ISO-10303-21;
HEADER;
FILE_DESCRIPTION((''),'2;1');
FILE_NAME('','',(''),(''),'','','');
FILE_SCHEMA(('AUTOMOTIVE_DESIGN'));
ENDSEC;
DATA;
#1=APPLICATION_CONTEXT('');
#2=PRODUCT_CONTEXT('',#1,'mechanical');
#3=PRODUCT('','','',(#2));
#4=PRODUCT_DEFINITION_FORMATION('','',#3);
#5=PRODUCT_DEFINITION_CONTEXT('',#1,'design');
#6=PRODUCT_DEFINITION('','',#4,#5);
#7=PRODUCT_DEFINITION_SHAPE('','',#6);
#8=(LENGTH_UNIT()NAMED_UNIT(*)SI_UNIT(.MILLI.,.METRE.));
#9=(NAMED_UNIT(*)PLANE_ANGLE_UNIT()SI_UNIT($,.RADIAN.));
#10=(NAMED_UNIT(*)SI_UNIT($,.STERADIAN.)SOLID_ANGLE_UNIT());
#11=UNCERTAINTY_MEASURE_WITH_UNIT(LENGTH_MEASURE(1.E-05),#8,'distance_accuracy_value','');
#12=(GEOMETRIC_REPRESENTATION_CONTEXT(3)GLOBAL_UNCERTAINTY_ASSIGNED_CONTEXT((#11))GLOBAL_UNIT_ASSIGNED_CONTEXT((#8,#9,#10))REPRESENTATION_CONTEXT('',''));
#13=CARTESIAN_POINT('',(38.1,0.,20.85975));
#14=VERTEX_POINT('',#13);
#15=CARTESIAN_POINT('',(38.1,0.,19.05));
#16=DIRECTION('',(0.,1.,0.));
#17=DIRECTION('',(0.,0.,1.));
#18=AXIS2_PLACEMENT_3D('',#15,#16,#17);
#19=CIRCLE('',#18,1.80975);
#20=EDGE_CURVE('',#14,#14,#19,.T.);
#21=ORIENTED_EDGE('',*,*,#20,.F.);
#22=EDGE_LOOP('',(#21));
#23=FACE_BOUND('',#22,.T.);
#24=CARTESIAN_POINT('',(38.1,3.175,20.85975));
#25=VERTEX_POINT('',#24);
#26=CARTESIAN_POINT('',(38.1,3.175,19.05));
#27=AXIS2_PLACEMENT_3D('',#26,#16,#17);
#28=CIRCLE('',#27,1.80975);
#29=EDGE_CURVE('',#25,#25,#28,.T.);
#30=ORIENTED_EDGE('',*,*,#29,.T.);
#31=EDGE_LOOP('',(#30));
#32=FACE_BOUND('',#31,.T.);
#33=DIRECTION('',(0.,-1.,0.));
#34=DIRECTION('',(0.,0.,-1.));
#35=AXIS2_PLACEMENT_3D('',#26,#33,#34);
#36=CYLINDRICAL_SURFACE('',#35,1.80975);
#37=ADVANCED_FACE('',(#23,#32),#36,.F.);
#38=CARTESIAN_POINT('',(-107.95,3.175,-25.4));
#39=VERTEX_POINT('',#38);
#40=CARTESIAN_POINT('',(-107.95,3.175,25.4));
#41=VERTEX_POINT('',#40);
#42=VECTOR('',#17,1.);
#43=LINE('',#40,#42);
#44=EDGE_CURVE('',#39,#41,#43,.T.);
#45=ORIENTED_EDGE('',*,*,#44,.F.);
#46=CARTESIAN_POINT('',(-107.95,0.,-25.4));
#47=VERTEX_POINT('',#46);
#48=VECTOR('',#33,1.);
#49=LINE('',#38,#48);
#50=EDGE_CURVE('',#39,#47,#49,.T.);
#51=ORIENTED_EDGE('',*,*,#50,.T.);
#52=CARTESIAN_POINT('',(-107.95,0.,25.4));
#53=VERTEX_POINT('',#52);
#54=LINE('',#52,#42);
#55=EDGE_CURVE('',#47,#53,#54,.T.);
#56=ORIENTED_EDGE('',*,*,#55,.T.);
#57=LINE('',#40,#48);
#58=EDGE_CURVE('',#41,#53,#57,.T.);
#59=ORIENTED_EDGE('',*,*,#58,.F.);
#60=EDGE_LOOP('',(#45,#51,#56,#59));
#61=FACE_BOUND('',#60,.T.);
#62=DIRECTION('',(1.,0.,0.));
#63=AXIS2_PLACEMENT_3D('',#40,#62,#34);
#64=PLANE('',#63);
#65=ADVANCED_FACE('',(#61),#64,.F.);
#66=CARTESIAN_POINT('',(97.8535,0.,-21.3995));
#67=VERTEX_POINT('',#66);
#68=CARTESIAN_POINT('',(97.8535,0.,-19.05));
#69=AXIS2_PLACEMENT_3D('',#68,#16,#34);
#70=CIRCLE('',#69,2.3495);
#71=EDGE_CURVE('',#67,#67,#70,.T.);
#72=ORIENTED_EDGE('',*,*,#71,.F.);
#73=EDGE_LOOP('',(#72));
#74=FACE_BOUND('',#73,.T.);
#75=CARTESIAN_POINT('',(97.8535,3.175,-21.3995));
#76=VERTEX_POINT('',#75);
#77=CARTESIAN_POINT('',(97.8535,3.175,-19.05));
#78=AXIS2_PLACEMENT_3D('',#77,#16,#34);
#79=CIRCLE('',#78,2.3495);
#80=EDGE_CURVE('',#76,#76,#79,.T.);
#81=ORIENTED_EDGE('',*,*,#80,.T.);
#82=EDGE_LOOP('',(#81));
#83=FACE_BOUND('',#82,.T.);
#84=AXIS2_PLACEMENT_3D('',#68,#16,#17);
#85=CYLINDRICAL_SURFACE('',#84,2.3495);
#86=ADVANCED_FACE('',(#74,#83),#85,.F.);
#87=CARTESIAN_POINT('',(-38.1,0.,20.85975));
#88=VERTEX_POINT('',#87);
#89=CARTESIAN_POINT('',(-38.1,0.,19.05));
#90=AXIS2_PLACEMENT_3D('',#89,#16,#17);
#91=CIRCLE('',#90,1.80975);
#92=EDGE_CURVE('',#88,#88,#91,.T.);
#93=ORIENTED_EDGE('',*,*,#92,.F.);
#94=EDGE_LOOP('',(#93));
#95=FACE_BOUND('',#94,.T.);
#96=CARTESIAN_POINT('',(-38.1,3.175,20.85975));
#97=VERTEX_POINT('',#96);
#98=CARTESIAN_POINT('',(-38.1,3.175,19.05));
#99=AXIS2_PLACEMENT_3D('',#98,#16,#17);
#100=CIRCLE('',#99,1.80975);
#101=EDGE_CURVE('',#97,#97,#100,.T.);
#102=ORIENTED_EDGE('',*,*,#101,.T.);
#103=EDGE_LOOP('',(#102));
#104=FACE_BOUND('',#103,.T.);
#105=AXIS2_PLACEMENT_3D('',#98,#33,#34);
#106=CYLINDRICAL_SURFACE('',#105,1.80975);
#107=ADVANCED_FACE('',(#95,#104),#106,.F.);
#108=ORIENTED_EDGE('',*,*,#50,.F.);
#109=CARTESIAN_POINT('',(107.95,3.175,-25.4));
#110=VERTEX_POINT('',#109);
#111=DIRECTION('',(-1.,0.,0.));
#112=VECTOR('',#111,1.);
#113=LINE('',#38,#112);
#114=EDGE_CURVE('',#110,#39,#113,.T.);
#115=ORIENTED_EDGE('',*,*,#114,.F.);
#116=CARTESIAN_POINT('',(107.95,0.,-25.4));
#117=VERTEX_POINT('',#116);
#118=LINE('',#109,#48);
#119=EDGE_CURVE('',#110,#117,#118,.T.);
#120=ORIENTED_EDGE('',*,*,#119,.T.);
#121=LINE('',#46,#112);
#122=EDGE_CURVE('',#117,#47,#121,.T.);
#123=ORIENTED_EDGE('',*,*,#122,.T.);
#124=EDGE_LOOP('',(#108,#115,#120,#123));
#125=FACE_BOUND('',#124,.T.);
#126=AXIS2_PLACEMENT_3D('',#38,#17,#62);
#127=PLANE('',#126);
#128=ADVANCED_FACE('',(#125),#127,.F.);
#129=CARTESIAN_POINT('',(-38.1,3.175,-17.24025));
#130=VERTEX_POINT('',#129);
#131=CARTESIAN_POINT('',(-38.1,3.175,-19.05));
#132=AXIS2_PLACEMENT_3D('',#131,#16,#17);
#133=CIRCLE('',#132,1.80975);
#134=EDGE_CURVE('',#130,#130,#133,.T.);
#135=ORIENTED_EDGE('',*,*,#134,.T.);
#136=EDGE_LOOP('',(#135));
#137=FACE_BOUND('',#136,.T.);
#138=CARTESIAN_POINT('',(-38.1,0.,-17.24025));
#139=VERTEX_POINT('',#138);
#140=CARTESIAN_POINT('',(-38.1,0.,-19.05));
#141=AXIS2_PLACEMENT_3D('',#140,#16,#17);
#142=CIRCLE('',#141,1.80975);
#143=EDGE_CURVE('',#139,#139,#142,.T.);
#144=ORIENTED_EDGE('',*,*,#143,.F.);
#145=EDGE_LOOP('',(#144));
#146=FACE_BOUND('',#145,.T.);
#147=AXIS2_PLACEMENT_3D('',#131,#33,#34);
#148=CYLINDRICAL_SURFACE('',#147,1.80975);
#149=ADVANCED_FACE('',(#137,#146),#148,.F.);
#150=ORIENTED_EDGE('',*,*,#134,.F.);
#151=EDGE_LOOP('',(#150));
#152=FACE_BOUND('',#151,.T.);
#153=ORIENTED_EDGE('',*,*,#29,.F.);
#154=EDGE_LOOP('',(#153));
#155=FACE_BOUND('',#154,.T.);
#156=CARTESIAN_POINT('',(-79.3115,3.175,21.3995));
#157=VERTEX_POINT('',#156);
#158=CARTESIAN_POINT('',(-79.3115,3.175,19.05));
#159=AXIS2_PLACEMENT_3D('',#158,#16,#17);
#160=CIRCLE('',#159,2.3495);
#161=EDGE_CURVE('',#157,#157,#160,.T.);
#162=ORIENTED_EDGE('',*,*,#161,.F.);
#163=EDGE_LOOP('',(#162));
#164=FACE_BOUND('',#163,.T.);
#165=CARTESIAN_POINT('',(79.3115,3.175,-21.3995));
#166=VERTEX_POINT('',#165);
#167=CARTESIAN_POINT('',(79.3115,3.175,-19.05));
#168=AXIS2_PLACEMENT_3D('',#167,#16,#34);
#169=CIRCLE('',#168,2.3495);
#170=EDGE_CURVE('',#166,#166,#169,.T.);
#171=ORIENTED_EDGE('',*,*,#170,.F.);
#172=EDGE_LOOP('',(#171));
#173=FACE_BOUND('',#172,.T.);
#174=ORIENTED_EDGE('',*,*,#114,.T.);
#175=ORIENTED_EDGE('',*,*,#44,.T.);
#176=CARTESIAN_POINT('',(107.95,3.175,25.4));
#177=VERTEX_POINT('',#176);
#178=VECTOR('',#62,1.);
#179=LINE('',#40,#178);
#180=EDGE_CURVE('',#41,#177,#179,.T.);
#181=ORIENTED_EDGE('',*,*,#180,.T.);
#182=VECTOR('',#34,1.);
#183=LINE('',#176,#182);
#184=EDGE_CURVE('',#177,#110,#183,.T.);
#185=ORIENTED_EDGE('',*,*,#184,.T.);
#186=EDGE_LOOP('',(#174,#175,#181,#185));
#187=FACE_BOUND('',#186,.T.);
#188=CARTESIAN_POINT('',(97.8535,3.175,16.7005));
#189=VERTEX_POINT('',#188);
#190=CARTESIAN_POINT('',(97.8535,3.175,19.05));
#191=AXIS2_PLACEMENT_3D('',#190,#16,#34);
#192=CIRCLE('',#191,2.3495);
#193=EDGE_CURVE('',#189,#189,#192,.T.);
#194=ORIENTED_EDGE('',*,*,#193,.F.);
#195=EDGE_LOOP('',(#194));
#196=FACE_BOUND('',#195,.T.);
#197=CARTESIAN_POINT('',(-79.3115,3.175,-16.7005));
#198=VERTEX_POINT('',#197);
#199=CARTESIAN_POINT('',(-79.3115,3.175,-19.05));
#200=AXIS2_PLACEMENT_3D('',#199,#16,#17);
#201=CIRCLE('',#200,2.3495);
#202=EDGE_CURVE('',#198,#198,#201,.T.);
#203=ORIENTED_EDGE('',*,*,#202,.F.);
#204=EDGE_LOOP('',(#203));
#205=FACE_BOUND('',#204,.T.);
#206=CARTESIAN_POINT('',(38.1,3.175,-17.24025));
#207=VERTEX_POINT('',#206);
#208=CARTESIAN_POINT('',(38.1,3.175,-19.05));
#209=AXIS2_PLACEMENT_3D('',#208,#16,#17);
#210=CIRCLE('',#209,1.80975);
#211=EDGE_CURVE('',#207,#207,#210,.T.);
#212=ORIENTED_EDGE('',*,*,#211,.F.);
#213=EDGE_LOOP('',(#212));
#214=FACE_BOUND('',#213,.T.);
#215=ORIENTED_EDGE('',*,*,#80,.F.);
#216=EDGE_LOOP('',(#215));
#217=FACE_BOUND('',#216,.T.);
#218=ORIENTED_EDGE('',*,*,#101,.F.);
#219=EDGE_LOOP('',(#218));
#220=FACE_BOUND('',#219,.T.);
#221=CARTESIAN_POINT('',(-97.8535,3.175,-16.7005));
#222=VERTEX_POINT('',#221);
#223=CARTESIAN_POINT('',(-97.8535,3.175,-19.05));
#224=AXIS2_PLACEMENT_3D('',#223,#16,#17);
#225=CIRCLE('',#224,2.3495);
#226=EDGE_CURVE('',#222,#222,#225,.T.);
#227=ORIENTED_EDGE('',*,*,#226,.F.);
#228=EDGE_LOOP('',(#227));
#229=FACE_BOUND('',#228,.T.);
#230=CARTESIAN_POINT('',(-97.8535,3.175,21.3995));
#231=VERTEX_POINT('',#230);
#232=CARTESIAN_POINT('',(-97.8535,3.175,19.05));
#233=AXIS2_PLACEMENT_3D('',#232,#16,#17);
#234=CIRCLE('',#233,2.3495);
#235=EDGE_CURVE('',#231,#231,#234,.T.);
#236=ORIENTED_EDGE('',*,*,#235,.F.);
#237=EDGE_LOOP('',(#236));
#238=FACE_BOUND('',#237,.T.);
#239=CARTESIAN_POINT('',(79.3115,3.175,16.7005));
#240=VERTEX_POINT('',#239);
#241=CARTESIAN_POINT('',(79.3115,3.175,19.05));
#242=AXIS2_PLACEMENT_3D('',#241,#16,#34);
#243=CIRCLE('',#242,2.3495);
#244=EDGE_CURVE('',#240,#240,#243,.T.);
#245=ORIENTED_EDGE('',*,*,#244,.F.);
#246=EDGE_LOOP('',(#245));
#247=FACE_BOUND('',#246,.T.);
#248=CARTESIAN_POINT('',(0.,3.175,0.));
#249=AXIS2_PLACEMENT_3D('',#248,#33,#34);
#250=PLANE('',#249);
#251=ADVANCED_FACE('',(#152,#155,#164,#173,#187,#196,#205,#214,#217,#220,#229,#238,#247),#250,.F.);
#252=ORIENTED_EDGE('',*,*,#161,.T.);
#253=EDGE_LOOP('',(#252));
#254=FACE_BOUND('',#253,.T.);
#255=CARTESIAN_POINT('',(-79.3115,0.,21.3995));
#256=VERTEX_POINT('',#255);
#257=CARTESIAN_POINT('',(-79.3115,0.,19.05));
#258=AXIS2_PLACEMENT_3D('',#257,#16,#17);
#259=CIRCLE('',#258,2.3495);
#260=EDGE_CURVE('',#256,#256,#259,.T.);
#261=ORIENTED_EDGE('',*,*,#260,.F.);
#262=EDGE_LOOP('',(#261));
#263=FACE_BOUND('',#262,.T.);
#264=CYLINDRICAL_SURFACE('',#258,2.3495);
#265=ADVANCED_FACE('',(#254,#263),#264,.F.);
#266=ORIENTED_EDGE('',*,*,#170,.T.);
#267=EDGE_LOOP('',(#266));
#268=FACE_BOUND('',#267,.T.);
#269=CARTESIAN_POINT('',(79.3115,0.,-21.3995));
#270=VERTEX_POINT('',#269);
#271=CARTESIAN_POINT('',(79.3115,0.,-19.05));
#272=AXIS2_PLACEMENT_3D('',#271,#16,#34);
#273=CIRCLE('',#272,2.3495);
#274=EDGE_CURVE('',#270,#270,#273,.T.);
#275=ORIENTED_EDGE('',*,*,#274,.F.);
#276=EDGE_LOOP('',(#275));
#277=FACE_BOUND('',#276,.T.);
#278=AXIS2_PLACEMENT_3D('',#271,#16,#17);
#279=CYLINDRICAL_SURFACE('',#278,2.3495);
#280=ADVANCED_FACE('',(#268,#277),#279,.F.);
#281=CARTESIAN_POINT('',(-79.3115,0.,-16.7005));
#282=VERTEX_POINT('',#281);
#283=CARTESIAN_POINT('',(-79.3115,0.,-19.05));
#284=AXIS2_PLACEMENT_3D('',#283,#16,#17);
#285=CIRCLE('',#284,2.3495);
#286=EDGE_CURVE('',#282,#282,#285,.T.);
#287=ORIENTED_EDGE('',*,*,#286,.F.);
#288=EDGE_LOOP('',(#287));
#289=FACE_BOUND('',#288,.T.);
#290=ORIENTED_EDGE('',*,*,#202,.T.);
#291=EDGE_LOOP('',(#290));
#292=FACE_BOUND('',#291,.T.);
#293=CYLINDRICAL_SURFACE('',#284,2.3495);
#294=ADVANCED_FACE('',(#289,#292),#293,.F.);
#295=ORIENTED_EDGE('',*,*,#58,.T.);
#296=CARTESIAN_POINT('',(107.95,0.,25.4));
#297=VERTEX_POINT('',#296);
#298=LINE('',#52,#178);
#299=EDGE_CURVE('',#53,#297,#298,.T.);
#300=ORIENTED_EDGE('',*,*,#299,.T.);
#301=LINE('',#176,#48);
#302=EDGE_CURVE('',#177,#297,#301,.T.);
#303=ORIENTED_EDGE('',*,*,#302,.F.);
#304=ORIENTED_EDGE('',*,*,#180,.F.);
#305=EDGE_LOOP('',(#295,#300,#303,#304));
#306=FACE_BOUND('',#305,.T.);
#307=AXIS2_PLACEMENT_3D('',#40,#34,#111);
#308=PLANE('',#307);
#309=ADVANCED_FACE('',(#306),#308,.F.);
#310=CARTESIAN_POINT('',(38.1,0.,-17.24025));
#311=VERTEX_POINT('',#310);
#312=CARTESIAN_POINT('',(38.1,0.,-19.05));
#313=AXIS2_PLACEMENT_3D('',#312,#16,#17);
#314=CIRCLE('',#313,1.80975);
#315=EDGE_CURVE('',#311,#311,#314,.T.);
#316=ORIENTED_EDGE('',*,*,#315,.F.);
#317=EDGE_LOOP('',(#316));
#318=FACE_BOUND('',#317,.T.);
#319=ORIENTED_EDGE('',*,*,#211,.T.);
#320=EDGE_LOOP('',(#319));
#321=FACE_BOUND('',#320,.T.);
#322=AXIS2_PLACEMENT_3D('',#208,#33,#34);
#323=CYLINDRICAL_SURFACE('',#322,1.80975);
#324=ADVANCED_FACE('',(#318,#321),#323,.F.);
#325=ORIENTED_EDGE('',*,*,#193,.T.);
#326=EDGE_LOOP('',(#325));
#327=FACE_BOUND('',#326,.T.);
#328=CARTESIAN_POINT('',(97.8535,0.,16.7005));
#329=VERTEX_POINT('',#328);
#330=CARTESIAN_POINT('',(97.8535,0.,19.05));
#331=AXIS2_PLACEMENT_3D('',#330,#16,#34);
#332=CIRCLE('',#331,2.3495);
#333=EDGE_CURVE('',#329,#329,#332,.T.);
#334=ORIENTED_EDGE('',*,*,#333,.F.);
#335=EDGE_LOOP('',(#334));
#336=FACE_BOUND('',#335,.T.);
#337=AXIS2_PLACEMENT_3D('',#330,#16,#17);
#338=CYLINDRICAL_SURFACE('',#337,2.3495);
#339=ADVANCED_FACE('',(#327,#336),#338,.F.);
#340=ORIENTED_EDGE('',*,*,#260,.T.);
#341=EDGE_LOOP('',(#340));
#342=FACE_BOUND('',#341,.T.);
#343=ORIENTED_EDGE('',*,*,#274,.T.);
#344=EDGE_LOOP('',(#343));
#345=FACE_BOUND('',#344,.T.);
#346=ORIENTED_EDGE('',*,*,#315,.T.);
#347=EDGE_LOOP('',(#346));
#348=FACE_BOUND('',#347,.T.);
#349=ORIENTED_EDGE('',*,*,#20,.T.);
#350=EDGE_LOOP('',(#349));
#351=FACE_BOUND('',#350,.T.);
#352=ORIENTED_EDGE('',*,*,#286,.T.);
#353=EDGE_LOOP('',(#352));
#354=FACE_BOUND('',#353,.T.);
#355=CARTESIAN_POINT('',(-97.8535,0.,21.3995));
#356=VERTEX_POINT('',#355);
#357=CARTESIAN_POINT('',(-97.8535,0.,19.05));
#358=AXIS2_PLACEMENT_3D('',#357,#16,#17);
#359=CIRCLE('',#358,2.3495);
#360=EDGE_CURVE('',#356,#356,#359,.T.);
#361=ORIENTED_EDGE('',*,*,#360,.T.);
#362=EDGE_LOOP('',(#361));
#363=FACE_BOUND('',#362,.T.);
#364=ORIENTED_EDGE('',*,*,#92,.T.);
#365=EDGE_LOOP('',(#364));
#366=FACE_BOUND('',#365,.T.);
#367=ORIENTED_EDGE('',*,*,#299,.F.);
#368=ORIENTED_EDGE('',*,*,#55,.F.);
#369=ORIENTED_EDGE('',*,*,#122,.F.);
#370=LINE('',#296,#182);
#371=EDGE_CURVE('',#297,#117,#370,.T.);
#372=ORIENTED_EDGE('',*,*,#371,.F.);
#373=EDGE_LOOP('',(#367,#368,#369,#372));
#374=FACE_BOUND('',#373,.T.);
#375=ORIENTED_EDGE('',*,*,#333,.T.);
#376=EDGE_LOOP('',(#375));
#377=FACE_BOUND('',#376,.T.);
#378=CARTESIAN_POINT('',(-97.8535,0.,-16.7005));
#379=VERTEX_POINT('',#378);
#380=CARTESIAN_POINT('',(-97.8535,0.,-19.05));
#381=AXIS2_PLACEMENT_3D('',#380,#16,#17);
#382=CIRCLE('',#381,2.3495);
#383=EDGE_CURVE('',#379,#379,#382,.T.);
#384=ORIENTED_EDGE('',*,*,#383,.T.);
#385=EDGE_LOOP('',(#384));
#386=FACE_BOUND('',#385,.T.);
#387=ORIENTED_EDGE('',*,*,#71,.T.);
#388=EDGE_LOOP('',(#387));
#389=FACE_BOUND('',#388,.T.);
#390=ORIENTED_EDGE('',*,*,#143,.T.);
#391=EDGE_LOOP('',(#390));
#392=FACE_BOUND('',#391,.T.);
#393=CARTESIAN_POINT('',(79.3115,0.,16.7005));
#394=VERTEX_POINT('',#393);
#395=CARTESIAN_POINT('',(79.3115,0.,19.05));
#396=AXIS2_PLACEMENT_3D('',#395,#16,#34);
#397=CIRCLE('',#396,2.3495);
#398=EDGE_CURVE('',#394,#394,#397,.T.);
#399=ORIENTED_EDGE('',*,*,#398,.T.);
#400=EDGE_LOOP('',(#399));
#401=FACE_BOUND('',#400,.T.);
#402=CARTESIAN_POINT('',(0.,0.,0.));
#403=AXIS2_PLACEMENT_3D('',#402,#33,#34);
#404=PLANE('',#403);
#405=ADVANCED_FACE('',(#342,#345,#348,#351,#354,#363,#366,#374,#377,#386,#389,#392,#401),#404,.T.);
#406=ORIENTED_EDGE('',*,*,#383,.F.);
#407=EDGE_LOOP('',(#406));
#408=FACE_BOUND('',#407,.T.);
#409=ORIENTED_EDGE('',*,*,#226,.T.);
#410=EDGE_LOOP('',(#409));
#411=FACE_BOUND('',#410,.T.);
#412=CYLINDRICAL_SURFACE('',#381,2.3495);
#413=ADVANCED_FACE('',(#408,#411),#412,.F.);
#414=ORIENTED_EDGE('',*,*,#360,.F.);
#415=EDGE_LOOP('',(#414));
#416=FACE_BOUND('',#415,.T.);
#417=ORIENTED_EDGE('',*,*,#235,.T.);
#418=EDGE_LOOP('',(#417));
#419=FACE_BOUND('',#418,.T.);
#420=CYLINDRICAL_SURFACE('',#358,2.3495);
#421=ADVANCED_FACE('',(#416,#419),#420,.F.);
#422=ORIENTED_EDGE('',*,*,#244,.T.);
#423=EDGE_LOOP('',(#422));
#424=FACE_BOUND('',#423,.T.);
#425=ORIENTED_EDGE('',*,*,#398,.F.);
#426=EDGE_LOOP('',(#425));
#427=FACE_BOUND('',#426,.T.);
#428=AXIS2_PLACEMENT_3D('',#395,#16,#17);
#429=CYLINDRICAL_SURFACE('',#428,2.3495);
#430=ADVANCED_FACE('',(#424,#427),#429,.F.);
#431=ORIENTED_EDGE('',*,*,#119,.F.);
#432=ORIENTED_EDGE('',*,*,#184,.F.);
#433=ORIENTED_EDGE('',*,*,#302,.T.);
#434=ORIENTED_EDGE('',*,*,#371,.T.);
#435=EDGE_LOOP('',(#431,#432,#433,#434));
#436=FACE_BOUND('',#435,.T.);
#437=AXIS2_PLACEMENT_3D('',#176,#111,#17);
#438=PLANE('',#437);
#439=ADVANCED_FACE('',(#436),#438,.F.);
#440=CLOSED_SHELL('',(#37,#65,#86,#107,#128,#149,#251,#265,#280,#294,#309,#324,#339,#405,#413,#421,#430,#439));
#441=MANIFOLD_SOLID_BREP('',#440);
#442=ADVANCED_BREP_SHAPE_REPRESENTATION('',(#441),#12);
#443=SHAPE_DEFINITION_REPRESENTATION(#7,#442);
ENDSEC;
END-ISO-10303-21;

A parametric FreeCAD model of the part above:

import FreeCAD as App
import Part
import Sketcher
Q = App.Units.Quantity


def add_polygon(sketch, points):
    """Adds a closed chain of lines whose ends are joined by coincident constraints."""
    first, n = sketch.GeometryCount, len(points)
    for a, b in zip(points, points[1:] + points[:1]):
        sketch.addGeometry(Part.LineSegment(App.Vector(*a, 0), App.Vector(*b, 0)), False)
    for i in range(n):
        sketch.addConstraint(Sketcher.Constraint("Coincident", first + i, 2, first + (i + 1) % n, 1))

doc = App.newDocument("Part")
params = doc.addObject("Spreadsheet::Sheet", "Params")
for row, (alias, value) in enumerate([
    ("sketch1_height", "2 in"),
    ("sketch1_width", "8.5 in"),
    ("pad1_length", "0.125 in"),
    ("sketch2_diameter", "0.185 in"),
], start=1):
    params.set(f"A{row}", alias)
    params.set(f"B{row}", "=" + value)
    params.setAlias(f"B{row}", alias)

body = doc.addObject("PartDesign::Body", "Body")

sketch1 = body.newObject("Sketcher::SketchObject", "Sketch")
sketch1.AttachmentSupport = (doc.getObject("XZ_Plane"), [""])
sketch1.MapMode = "FlatFace"
add_polygon(sketch1, [(-108, -25.4), (-108, 25.4), (108, 25.4), (108, -25.4)])
sketch1.addGeometry(Part.Circle(App.Vector(-38.1, 19.1, 0), App.Vector(0, 0, 1), 1.8), False)
sketch1.addGeometry(Part.Circle(App.Vector(38.1, 19.1, 0), App.Vector(0, 0, 1), 1.8), False)
sketch1.addGeometry(Part.Circle(App.Vector(-38.1, -19.1, 0), App.Vector(0, 0, 1), 1.8), False)
sketch1.addGeometry(Part.Circle(App.Vector(38.1, -19.1, 0), App.Vector(0, 0, 1), 1.8), False)
sketch1.addConstraint([
    Sketcher.Constraint("Vertical", 0),
    Sketcher.Constraint("Horizontal", 1),
    Sketcher.Constraint("Vertical", 2),
    Sketcher.Constraint("Horizontal", 3),
    Sketcher.Constraint("Equal", 4, 5),
    Sketcher.Constraint("Equal", 5, 6),
    Sketcher.Constraint("Equal", 6, 7),
    Sketcher.Constraint("Symmetric", 5, 3, 6, 3, -1, 1),
    Sketcher.Constraint("Symmetric", 4, 3, 7, 3, -1, 1),
    Sketcher.Constraint("Symmetric", 0, 2, 2, 2, -1, 1),
    Sketcher.Constraint("Symmetric", 4, 3, 5, 3, -2),
    Sketcher.Constraint("DistanceY", 0, 1, 0, 2, Q("2 in")),
    Sketcher.Constraint("DistanceX", 1, 1, 1, 2, Q("8.5 in")),
    Sketcher.Constraint("DistanceX", 4, 3, 5, 3, Q("3 in")),
    Sketcher.Constraint("Diameter", 4, Q("0.1425 in")),
    Sketcher.Constraint("DistanceY", 6, 3, 4, 3, Q("1.5 in")),
])
sketch1.setExpression("Constraints[15]", "Params.sketch1_height")
sketch1.setExpression("Constraints[16]", "Params.sketch1_width")
pad1 = body.newObject("PartDesign::Pad", "Pad")
pad1.Profile = sketch1
pad1.setExpression("Length", "Params.pad1_length")
pad1.Reversed = True

sketch2 = body.newObject("Sketcher::SketchObject", "Sketch001")
sketch2.AttachmentSupport = (doc.getObject("XZ_Plane"), [""])
sketch2.MapMode = "FlatFace"
sketch2.AttachmentOffset = App.Placement(App.Vector(0, 0, -0.125 * 25.4), App.Rotation())
sketch2.addGeometry([
    Part.Circle(App.Vector(-97.9, -19.1, 0), App.Vector(0, 0, 1), 2.3),
    Part.Circle(App.Vector(-79.3, -19.1, 0), App.Vector(0, 0, 1), 2.3),
    Part.Circle(App.Vector(-79.3, 19.1, 0), App.Vector(0, 0, 1), 2.3),
    Part.Circle(App.Vector(-97.9, 19.1, 0), App.Vector(0, 0, 1), 2.3),
    Part.Circle(App.Vector(97.9, 19.1, 0), App.Vector(0, 0, 1), 2.3),
    Part.Circle(App.Vector(79.3, 19.1, 0), App.Vector(0, 0, 1), 2.3),
    Part.Circle(App.Vector(79.3, -19.1, 0), App.Vector(0, 0, 1), 2.3),
    Part.Circle(App.Vector(97.9, -19.1, 0), App.Vector(0, 0, 1), 2.3),
], False)
sketch2.addConstraint([
    Sketcher.Constraint("Equal", 0, 1),
    Sketcher.Constraint("Equal", 1, 2),
    Sketcher.Constraint("Equal", 2, 3),
    Sketcher.Constraint("Equal", 3, 4),
    Sketcher.Constraint("Equal", 4, 5),
    Sketcher.Constraint("Equal", 5, 6),
    Sketcher.Constraint("Equal", 6, 7),
    Sketcher.Constraint("Symmetric", 0, 3, 4, 3, -1, 1),
    Sketcher.Constraint("Symmetric", 1, 3, 5, 3, -1, 1),
    Sketcher.Constraint("Symmetric", 2, 3, 6, 3, -1, 1),
    Sketcher.Constraint("Symmetric", 3, 3, 7, 3, -1, 1),
    Sketcher.Constraint("Symmetric", 3, 3, 4, 3, -2),
    Sketcher.Constraint("Symmetric", 2, 3, 5, 3, -2),
    Sketcher.Constraint("Horizontal", 0, 3, 1, 3),
    Sketcher.Constraint("Diameter", 0, Q("0.185 in")),
    Sketcher.Constraint("DistanceY", 1, 3, 2, 3, Q("1.5 in")),
    Sketcher.Constraint("DistanceX", 0, 3, 1, 3, Q("0.73 in")),
    Sketcher.Constraint("DistanceX", 2, 3, 4, 3, Q("6.975 in")),
])
sketch2.setExpression("Constraints[14]", "Params.sketch2_diameter")
pocket1 = body.newObject("PartDesign::Pocket", "Pocket")
pocket1.Profile = sketch2
pocket1.Type = "ThroughAll"
pocket1.Reversed = True

doc.recompute()
